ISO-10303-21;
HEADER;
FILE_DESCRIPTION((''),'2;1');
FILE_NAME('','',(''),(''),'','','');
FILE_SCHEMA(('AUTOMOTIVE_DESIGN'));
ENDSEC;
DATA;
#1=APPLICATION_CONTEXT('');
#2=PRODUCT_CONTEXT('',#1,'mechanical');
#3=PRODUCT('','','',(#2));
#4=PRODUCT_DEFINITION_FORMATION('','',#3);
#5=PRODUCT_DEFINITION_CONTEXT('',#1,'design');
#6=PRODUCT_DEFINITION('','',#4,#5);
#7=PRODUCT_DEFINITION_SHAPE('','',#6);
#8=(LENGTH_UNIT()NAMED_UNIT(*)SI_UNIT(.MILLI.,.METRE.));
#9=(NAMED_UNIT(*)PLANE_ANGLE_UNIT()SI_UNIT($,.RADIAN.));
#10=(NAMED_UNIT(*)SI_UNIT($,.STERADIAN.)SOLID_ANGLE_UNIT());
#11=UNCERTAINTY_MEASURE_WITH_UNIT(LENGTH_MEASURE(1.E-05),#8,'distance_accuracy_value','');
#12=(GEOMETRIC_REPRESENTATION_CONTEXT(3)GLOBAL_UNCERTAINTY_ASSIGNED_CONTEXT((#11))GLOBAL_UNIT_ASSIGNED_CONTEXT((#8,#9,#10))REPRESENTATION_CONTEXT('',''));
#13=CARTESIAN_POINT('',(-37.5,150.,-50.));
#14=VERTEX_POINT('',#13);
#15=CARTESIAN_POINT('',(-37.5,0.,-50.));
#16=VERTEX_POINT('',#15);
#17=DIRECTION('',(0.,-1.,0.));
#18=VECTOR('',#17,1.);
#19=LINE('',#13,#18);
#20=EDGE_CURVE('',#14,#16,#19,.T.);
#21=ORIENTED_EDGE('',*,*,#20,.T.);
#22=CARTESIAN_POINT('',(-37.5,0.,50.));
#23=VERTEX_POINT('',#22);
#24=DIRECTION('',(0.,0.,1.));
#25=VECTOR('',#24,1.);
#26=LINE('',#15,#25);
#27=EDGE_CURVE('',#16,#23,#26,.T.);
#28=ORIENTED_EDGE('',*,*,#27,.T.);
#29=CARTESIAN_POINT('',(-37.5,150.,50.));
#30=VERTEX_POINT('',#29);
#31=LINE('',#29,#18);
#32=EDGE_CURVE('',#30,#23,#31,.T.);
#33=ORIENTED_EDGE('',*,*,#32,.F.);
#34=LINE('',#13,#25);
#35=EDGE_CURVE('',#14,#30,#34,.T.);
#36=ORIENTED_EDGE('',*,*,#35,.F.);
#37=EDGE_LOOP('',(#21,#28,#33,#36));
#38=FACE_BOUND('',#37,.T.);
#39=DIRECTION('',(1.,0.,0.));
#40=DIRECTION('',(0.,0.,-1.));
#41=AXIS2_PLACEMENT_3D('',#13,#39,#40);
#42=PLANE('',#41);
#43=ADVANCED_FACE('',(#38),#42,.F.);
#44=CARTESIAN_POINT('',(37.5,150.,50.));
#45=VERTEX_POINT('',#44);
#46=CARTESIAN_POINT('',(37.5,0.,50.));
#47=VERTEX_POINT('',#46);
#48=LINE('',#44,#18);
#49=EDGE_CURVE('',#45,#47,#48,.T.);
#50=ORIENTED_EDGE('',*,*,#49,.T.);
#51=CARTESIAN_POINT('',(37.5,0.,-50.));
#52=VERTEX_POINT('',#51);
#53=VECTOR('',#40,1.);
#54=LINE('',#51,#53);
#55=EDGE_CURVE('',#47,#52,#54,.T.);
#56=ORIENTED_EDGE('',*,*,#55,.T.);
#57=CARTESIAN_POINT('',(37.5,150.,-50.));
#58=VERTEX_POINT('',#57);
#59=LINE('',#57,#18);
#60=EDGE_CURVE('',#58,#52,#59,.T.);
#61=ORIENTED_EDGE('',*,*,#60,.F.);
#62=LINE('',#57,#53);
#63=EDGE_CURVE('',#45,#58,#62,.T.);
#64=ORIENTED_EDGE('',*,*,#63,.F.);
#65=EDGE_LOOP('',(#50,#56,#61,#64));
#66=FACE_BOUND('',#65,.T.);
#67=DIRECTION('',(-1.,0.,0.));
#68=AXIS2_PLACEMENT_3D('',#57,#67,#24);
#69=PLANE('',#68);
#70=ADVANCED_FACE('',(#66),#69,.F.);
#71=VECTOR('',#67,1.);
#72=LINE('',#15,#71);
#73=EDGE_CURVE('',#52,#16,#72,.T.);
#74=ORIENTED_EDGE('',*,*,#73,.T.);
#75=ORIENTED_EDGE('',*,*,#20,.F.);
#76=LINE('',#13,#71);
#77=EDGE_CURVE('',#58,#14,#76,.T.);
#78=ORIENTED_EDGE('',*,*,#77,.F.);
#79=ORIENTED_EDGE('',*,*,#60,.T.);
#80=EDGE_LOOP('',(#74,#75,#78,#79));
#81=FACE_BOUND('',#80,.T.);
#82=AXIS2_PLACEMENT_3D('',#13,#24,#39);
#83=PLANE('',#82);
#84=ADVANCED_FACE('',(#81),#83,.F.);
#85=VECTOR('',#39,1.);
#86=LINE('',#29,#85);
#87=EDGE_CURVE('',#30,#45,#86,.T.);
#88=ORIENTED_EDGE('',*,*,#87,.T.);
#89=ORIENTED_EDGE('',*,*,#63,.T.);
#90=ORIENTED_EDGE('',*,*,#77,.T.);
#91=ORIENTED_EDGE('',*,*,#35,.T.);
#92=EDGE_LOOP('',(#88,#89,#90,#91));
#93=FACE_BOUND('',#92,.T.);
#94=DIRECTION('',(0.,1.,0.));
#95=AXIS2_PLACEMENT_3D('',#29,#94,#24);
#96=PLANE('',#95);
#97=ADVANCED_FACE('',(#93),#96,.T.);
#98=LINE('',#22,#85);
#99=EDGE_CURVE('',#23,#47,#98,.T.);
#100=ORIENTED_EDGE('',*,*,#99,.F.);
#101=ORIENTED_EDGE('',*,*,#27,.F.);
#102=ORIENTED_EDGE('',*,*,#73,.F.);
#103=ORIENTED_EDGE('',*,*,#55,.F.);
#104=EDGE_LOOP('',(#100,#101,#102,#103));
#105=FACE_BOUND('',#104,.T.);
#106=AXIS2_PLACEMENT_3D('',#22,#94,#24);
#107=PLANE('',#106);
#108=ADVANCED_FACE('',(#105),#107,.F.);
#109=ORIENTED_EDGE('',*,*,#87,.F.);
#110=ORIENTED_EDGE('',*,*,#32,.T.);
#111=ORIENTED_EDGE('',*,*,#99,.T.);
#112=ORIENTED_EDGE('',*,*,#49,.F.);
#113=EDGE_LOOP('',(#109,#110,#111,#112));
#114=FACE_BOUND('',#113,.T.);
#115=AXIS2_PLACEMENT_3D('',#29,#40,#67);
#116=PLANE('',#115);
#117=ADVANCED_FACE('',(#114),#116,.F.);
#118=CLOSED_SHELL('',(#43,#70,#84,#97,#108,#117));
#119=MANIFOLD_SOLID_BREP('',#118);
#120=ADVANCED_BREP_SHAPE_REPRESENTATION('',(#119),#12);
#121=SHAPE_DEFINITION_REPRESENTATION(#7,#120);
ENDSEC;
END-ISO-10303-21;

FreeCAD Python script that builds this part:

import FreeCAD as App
import Part
import Sketcher

V = App.Vector
Q = App.Units.Quantity


def add_polygon(sketch, points):
    """Adds a closed chain of lines whose ends are joined by coincident constraints."""
    first, n = sketch.GeometryCount, len(points)
    for a, b in zip(points, points[1:] + points[:1]):
        sketch.addGeometry(Part.LineSegment(App.Vector(*a, 0), App.Vector(*b, 0)), False)
    for i in range(n):
        sketch.addConstraint(Sketcher.Constraint("Coincident", first + i, 2, first + (i + 1) % n, 1))

doc = App.newDocument("Part")
params = doc.addObject("Spreadsheet::Sheet", "Params")
for row, (alias, value) in enumerate([
    ("sketch1_width", "75 mm"),
    ("sketch1_height", "100 mm"),
    ("pad1_length", "150 mm"),
], start=1):
    params.set(f"A{row}", alias)
    params.set(f"B{row}", "=" + value)
    params.setAlias(f"B{row}", alias)

body = doc.addObject("PartDesign::Body", "Body")

# Sketch on XZ plane
sketch1 = doc.addObject("Sketcher::SketchObject", "Sketch")
body.addObject(sketch1)
sketch1.AttachmentSupport = (doc.XZ_Plane, [""])
sketch1.MapMode = "FlatFace"
add_polygon(sketch1, [(-38, -50), (-38, 50), (38, 50), (38, -50)])  # lines 0-3
sketch1.addConstraint([
    Sketcher.Constraint("Vertical", 0),
    Sketcher.Constraint("Horizontal", 1),
    Sketcher.Constraint("Vertical", 2),
    Sketcher.Constraint("Horizontal", 3),
    Sketcher.Constraint("Symmetric", 0, 2, 2, 2, -1, 1),
    Sketcher.Constraint("DistanceX", 1, 1, 1, 2, Q("75 mm")),
    Sketcher.Constraint("DistanceY", 0, 1, 0, 2, Q("100 mm")),
])
sketch1.setExpression("Constraints[9]", "Params.sketch1_width")
sketch1.setExpression("Constraints[10]", "Params.sketch1_height")
pad1 = doc.addObject("PartDesign::Pad", "Pad")
body.addObject(pad1)
pad1.Profile = sketch1
pad1.setExpression("Length", "Params.pad1_length")
pad1.Reversed = True

doc.recompute()
